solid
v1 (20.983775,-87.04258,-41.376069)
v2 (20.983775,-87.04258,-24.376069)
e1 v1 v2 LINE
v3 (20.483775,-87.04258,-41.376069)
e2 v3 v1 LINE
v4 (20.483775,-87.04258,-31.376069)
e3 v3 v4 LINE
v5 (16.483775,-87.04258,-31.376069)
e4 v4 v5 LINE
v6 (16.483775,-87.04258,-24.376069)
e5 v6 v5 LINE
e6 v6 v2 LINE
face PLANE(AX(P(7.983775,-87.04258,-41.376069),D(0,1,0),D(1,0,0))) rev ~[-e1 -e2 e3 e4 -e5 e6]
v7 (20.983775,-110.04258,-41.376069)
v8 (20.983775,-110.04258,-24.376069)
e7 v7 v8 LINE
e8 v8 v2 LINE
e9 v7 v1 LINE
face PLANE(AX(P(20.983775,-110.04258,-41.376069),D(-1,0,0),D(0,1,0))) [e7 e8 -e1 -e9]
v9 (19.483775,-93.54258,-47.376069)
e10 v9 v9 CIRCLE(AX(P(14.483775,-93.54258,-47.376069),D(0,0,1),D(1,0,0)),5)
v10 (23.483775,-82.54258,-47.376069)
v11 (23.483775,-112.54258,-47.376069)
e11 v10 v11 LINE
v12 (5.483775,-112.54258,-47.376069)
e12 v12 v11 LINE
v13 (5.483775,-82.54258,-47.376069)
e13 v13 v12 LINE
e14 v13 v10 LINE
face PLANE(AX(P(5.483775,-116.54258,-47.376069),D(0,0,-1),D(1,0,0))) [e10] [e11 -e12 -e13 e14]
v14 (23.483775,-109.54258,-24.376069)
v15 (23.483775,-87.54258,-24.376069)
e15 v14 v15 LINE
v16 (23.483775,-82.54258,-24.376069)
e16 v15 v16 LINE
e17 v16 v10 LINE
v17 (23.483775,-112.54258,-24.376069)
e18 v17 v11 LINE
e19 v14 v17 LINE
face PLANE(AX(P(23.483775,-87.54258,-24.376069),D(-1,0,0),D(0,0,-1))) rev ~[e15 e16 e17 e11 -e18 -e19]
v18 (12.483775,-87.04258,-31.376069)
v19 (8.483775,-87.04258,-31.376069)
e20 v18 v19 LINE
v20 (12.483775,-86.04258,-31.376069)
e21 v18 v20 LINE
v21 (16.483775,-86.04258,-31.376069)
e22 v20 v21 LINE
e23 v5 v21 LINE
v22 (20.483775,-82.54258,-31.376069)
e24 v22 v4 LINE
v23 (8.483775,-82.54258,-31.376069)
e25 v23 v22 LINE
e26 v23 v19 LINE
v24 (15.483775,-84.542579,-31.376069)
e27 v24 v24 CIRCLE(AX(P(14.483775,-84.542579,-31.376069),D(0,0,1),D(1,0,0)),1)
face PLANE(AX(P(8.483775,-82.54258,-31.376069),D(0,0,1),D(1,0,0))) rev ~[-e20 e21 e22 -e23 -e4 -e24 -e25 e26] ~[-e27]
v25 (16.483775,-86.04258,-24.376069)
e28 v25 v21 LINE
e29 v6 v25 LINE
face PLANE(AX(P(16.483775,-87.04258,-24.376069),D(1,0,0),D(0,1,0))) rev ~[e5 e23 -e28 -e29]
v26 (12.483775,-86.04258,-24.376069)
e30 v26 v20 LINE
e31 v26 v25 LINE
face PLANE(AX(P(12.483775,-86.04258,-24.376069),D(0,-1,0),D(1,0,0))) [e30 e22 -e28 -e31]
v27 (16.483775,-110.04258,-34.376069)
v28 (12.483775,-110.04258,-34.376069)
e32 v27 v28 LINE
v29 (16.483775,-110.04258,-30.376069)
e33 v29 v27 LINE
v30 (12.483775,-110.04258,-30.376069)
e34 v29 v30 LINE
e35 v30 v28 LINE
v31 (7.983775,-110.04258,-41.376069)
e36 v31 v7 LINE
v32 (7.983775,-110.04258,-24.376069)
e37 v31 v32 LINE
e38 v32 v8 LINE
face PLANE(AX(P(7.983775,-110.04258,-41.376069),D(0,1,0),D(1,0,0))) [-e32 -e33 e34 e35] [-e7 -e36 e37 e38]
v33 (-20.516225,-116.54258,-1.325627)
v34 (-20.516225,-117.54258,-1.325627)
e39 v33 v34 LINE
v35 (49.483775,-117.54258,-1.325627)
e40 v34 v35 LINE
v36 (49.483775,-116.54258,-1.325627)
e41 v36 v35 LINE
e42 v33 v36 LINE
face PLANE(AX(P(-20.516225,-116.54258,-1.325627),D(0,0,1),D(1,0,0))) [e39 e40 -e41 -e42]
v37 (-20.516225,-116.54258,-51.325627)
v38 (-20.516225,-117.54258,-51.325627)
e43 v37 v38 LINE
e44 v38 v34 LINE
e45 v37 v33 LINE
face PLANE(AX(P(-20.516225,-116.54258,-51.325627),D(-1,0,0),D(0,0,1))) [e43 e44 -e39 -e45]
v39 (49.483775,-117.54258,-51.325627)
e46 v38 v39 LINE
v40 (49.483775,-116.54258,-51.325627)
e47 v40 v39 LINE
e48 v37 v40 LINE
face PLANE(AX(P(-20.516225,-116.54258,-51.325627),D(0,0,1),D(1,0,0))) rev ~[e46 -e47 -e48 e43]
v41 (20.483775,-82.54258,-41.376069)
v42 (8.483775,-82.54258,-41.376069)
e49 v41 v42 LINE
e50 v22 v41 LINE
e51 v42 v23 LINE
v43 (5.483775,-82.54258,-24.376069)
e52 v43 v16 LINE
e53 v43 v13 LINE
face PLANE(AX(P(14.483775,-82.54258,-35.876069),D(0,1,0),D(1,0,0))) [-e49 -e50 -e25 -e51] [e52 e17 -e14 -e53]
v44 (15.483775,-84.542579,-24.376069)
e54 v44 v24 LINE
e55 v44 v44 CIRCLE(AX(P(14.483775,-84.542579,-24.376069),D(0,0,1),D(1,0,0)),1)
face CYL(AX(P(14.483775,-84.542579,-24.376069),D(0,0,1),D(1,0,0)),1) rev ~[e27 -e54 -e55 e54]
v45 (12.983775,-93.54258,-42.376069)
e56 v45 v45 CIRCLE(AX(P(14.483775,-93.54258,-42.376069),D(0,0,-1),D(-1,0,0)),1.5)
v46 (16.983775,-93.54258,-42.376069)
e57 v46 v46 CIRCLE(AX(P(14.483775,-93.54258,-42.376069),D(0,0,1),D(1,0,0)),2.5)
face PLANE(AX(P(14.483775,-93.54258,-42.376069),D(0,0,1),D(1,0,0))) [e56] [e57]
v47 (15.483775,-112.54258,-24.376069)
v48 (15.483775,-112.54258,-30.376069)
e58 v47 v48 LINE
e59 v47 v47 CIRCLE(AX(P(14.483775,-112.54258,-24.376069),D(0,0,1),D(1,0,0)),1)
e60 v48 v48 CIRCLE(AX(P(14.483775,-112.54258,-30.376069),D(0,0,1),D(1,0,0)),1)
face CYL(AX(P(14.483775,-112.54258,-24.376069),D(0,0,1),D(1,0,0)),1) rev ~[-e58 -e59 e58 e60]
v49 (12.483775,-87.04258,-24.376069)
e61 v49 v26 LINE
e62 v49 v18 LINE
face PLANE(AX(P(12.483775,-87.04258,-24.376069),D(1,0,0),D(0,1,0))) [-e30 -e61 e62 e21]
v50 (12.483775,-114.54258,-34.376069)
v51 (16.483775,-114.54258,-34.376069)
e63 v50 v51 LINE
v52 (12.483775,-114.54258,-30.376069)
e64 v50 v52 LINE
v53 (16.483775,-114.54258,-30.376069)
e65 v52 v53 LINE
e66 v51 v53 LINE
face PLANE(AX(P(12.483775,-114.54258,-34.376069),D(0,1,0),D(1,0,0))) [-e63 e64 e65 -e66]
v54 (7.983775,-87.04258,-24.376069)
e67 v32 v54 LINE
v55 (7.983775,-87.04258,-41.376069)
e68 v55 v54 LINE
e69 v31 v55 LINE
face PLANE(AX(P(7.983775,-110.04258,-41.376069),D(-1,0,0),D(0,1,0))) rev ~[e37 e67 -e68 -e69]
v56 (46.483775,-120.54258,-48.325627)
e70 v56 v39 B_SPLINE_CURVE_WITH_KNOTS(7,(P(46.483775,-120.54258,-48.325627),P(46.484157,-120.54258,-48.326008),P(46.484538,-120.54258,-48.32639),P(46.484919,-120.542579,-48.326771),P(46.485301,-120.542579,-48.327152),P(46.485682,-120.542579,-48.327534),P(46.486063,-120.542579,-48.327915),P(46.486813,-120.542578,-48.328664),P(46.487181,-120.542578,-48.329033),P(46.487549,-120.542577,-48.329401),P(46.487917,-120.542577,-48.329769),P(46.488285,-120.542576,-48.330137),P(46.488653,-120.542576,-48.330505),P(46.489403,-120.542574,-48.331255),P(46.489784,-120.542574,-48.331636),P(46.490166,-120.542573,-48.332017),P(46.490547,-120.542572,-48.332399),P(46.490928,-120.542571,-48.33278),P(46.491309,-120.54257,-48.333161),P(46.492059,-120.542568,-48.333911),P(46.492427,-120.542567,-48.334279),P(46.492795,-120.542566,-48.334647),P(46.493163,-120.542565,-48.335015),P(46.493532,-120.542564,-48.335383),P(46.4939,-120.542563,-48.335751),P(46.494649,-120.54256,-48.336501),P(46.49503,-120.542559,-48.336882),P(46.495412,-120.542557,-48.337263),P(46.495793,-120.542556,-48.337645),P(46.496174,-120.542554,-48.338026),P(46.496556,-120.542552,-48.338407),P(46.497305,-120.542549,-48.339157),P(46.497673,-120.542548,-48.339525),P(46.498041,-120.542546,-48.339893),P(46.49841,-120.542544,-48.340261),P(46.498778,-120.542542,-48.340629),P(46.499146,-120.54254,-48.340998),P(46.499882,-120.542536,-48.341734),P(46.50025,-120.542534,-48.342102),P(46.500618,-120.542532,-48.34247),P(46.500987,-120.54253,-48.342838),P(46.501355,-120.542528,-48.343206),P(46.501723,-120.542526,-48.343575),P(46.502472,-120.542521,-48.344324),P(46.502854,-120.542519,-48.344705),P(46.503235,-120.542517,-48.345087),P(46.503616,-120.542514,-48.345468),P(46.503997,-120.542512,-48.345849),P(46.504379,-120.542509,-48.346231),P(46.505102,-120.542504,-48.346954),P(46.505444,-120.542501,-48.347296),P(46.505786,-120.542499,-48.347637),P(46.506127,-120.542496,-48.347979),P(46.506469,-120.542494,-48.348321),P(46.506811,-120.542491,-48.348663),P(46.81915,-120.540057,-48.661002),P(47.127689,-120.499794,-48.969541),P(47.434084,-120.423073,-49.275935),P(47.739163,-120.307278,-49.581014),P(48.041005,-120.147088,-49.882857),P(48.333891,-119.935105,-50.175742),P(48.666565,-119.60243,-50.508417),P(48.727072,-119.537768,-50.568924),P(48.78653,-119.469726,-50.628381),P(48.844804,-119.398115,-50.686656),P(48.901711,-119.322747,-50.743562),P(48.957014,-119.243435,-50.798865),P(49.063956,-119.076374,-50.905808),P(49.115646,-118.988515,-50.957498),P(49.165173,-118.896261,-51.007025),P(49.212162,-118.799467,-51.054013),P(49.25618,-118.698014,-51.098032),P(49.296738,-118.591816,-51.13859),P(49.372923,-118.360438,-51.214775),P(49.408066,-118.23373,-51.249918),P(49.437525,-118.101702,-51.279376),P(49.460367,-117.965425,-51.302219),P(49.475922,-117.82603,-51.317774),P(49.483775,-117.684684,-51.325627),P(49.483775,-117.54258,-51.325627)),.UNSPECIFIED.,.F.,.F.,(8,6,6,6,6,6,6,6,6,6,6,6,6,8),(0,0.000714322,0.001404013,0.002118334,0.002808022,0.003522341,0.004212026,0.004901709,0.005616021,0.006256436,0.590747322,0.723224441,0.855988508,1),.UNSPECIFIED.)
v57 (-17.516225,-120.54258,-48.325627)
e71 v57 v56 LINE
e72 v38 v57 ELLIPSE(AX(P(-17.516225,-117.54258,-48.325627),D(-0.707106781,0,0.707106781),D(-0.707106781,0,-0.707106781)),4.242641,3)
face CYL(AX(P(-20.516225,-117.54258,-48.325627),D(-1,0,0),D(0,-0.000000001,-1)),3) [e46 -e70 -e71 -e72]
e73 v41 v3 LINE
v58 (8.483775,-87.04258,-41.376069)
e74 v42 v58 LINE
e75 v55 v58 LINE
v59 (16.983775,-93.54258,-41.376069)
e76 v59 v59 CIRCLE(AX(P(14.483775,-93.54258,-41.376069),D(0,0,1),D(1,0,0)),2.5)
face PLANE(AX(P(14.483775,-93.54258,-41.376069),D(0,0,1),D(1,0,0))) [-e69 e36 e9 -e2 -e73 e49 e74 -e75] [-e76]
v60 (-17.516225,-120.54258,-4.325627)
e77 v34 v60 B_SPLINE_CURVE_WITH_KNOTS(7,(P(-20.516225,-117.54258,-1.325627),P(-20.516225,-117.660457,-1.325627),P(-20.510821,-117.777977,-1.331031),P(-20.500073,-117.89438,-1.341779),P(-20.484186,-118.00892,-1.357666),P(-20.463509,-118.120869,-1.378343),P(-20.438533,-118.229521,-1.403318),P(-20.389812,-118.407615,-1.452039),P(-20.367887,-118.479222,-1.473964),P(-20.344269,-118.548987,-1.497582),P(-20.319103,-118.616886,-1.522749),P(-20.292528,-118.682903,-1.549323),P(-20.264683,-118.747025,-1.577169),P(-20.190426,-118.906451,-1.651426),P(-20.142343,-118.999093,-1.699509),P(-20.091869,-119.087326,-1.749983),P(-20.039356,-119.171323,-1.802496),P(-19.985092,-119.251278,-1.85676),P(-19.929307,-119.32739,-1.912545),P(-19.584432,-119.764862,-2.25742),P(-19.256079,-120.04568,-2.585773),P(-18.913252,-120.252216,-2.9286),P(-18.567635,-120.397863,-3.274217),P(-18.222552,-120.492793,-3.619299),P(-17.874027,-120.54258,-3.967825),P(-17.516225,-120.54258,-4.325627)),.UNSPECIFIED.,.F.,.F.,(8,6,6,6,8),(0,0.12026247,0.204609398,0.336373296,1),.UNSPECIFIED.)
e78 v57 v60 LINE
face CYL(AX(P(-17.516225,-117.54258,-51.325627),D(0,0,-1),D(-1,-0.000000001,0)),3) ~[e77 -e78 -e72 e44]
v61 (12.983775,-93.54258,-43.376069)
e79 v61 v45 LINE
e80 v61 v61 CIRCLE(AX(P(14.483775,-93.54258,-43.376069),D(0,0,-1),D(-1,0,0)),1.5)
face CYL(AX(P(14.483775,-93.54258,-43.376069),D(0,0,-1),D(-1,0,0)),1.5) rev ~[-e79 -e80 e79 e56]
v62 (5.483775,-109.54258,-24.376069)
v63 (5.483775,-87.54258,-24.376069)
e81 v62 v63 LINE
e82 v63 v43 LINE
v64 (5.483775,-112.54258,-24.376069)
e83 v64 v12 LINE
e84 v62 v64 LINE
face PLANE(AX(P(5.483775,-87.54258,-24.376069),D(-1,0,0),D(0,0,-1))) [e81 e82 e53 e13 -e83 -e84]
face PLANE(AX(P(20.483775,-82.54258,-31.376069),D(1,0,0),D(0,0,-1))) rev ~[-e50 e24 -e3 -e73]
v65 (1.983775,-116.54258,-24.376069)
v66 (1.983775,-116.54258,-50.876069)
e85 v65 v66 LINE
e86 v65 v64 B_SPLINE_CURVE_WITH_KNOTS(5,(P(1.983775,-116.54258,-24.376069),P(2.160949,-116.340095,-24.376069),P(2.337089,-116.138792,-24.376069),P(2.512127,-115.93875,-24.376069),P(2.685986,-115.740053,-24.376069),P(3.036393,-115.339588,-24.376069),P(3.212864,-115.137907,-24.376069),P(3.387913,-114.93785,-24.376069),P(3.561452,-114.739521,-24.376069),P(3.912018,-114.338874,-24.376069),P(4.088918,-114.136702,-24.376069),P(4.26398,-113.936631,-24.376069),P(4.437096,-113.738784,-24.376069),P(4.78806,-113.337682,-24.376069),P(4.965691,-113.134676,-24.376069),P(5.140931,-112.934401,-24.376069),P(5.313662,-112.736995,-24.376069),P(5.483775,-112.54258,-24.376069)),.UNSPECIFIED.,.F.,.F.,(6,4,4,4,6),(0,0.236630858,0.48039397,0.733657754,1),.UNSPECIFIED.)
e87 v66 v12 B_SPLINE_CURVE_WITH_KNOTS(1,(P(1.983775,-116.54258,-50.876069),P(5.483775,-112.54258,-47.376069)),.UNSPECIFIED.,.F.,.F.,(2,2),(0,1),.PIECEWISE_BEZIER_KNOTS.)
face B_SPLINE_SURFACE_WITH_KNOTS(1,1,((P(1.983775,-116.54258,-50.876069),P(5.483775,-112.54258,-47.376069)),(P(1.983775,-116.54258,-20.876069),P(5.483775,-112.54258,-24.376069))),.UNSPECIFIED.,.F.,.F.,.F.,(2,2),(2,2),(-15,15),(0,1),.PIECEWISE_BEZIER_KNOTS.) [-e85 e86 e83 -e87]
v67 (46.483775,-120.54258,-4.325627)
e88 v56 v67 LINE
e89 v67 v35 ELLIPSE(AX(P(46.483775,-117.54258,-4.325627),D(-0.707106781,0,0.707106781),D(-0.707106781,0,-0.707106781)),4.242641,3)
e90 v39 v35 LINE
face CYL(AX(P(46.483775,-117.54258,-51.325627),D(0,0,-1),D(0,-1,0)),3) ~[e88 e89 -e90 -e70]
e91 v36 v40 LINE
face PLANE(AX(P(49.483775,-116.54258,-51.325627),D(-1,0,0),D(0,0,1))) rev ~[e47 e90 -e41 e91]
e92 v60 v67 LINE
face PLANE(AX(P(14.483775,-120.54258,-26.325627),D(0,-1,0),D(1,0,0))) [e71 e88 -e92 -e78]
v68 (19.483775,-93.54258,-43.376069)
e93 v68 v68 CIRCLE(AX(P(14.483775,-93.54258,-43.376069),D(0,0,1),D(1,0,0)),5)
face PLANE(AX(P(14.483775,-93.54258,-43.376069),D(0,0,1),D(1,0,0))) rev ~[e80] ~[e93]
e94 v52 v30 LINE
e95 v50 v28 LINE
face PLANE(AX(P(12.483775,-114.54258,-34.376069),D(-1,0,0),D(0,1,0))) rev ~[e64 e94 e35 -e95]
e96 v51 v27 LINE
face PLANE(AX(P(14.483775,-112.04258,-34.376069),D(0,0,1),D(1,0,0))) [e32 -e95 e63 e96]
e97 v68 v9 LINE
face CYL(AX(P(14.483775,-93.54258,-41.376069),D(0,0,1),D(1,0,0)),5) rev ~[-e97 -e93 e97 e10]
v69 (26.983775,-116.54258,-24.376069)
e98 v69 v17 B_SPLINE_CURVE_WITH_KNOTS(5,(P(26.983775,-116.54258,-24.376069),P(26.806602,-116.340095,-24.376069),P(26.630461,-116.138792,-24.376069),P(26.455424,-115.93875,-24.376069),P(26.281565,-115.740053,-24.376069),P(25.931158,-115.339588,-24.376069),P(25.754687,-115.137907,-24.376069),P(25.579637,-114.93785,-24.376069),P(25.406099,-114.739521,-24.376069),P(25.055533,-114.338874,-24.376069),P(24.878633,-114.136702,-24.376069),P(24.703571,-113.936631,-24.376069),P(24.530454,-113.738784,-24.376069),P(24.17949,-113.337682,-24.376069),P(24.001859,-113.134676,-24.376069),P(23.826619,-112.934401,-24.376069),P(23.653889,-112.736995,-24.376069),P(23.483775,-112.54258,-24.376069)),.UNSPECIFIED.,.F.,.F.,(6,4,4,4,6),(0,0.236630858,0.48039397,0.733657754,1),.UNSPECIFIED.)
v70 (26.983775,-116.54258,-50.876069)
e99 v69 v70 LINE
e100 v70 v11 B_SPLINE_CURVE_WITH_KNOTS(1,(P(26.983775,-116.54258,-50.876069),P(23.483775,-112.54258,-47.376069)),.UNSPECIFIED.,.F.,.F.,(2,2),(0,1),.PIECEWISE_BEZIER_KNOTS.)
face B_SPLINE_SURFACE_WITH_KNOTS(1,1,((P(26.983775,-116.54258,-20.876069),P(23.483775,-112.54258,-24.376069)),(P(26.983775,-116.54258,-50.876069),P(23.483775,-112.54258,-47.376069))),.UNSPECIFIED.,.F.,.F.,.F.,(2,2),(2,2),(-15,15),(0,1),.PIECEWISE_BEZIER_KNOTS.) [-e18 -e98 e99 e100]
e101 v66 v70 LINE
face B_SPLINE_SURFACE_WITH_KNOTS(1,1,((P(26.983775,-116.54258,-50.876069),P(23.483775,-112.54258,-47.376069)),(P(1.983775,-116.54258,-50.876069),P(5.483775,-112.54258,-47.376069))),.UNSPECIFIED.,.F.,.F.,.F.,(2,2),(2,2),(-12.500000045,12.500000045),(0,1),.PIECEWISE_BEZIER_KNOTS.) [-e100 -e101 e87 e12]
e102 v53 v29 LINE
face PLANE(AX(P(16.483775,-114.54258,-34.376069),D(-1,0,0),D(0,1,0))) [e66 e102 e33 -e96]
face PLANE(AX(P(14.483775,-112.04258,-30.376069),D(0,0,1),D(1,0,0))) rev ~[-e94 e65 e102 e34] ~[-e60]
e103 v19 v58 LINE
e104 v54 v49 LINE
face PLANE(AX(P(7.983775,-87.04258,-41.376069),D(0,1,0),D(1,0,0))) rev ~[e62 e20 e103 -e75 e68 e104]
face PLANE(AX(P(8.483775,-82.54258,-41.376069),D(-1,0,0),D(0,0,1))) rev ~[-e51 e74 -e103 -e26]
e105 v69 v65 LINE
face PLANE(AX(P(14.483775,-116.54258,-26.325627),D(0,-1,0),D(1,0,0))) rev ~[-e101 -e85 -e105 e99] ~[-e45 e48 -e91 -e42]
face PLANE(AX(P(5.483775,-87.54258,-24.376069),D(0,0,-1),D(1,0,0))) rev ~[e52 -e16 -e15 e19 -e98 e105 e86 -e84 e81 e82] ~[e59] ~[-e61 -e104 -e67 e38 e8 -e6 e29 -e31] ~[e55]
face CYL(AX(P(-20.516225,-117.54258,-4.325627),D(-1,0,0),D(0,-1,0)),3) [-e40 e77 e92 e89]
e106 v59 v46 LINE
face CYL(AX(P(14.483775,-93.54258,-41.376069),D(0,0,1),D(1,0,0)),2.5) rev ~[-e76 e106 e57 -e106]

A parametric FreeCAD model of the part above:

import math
import FreeCAD as App
import Part
import Sketcher
from FreeCAD import Vector
Q = App.Units.Quantity

doc = App.newDocument("Part")
body = doc.addObject("PartDesign::Body", "Body")

sketch1 = body.newObject("Sketcher::SketchObject", "Sketch")
sketch1.AttachmentSupport = (doc.getObject("XZ_Plane"), [""])
sketch1.MapMode = "FlatFace"
sketch1.AttachmentOffset = App.Placement(Vector(0, 0, 109.54258), App.Rotation())
sketch1.addGeometry([
    Part.LineSegment(Vector(23.5, -44.4, 0), Vector(23.5, -24.4, 0)),
    Part.LineSegment(Vector(23.5, -24.4, 0), Vector(20.5, -24.4, 0)),
    Part.LineSegment(Vector(20.5, -24.4, 0), Vector(20.5, -41.4, 0)),
    Part.LineSegment(Vector(20.5, -41.4, 0), Vector(8.5, -41.4, 0)),
    Part.LineSegment(Vector(8.5, -41.4, 0), Vector(8.5, -24.4, 0)),
    Part.LineSegment(Vector(8.5, -24.4, 0), Vector(5.5, -24.4, 0)),
    Part.LineSegment(Vector(5.5, -24.4, 0), Vector(5.5, -44.4, 0)),
    Part.LineSegment(Vector(5.5, -44.4, 0), Vector(23.5, -44.4, 0)),
], False)
sketch1.addConstraint([
    Sketcher.Constraint("Coincident", 0, 2, 1, 1),
    Sketcher.Constraint("Coincident", 1, 2, 2, 1),
    Sketcher.Constraint("Coincident", 2, 2, 3, 1),
    Sketcher.Constraint("Coincident", 3, 2, 4, 1),
    Sketcher.Constraint("Coincident", 4, 2, 5, 1),
    Sketcher.Constraint("Coincident", 5, 2, 6, 1),
    Sketcher.Constraint("Coincident", 6, 2, 7, 1),
    Sketcher.Constraint("Coincident", 7, 2, 0, 1),
    Sketcher.Constraint("Vertical", 0),
    Sketcher.Constraint("Horizontal", 1),
    Sketcher.Constraint("Vertical", 2),
    Sketcher.Constraint("Horizontal", 3),
    Sketcher.Constraint("Vertical", 4),
    Sketcher.Constraint("Horizontal", 5),
    Sketcher.Constraint("Vertical", 6),
    Sketcher.Constraint("Horizontal", 7),
    Sketcher.Constraint("Horizontal", 1, 2, 4, 2),
    Sketcher.Constraint("Equal", 1, 5),
    Sketcher.Constraint("DistanceX", 1, 2, 1, 1, Q("3 mm")),
    Sketcher.Constraint("DistanceX", 3, 2, 3, 1, Q("12 mm")),
    Sketcher.Constraint("DistanceY", 0, 1, 0, 2, Q("20 mm")),
    Sketcher.Constraint("DistanceY", 2, 2, 2, 1, Q("17 mm")),
    Sketcher.Constraint("DistanceY", 0, 2, -1, 1, Q("24.376069 mm")),
    Sketcher.Constraint("DistanceX", -1, 1, 0, 2, Q("23.483775 mm")),
])
pad1 = body.newObject("PartDesign::Pad", "Pad")
pad1.Profile = sketch1
pad1.Length = 22
pad1.Reversed = True

sketch2 = body.newObject("Sketcher::SketchObject", "Sketch001")
sketch2.AttachmentSupport = (doc.getObject("XZ_Plane"), [""])
sketch2.MapMode = "FlatFace"
sketch2.AttachmentOffset = App.Placement(Vector(0, 0, 109.54258), App.Rotation())
sketch2.addGeometry([
    Part.LineSegment(Vector(5, -24, 0), Vector(5, -44, 0)),
    Part.LineSegment(Vector(5, -44, 0), Vector(23, -44, 0)),
    Part.LineSegment(Vector(23, -44, 0), Vector(23, -24, 0)),
    Part.LineSegment(Vector(23, -24, 0), Vector(5, -24, 0)),
], False)
sketch2.addConstraint([
    Sketcher.Constraint("Coincident", 0, 2, 1, 1),
    Sketcher.Constraint("Coincident", 1, 2, 2, 1),
    Sketcher.Constraint("Coincident", 2, 2, 3, 1),
    Sketcher.Constraint("Coincident", 3, 2, 0, 1),
    Sketcher.Constraint("Vertical", 0),
    Sketcher.Constraint("Horizontal", 1),
    Sketcher.Constraint("Vertical", 2),
    Sketcher.Constraint("Horizontal", 3),
    Sketcher.Constraint("DistanceX", 1, 1, 1, 2, Q("18 mm")),
    Sketcher.Constraint("DistanceY", 0, 2, 0, 1, Q("20 mm")),
    Sketcher.Constraint("DistanceY", 0, 2, -1, 1, Q("44.376069 mm")),
    Sketcher.Constraint("DistanceX", -1, 1, 0, 2, Q("5.483775 mm")),
])
pad2 = body.newObject("PartDesign::Pad", "Pad001")
pad2.Profile = sketch2
pad2.Length = 7

sketch3 = body.newObject("Sketcher::SketchObject", "Sketch002")
sketch3.AttachmentSupport = (doc.getObject("XZ_Plane"), [""])
sketch3.MapMode = "FlatFace"
sketch3.AttachmentOffset = App.Placement(Vector(0, 0, 116.54258), App.Rotation())
sketch3.addGeometry([
    Part.LineSegment(Vector(-21, -1, 0), Vector(-21, -51, 0)),
    Part.LineSegment(Vector(-21, -51, 0), Vector(49, -51, 0)),
    Part.LineSegment(Vector(49, -51, 0), Vector(49, -1, 0)),
    Part.LineSegment(Vector(49, -1, 0), Vector(-21, -1, 0)),
], False)
sketch3.addConstraint([
    Sketcher.Constraint("Coincident", 0, 2, 1, 1),
    Sketcher.Constraint("Coincident", 1, 2, 2, 1),
    Sketcher.Constraint("Coincident", 2, 2, 3, 1),
    Sketcher.Constraint("Coincident", 3, 2, 0, 1),
    Sketcher.Constraint("Vertical", 0),
    Sketcher.Constraint("Horizontal", 1),
    Sketcher.Constraint("Vertical", 2),
    Sketcher.Constraint("Horizontal", 3),
    Sketcher.Constraint("DistanceX", 1, 1, 1, 2, Q("70 mm")),
    Sketcher.Constraint("DistanceY", 0, 2, 0, 1, Q("50 mm")),
    Sketcher.Constraint("DistanceX", 0, 2, -1, 1, Q("20.516225 mm")),
    Sketcher.Constraint("DistanceY", 0, 2, -1, 1, Q("51.325627 mm")),
])
pad3 = body.newObject("PartDesign::Pad", "Pad002")
pad3.Profile = sketch3
pad3.Length = 4

sketch4 = body.newObject("Sketcher::SketchObject", "Sketch003")
sketch4.AttachmentSupport = (doc.getObject("XZ_Plane"), [""])
sketch4.MapMode = "FlatFace"
sketch4.AttachmentOffset = App.Placement(Vector(0, 0, 116.54258), App.Rotation())
sketch4.addGeometry([
    Part.LineSegment(Vector(5.5, -47.4, 0), Vector(5.5, -44.4, 0)),
    Part.LineSegment(Vector(5.5, -44.4, 0), Vector(23.5, -44.4, 0)),
    Part.LineSegment(Vector(23.5, -44.4, 0), Vector(23.5, -47.4, 0)),
    Part.LineSegment(Vector(23.5, -47.4, 0), Vector(5.5, -47.4, 0)),
], False)
sketch4.addConstraint([
    Sketcher.Constraint("Coincident", 0, 2, 1, 1),
    Sketcher.Constraint("Coincident", 1, 2, 2, 1),
    Sketcher.Constraint("Coincident", 2, 2, 3, 1),
    Sketcher.Constraint("Coincident", 3, 2, 0, 1),
    Sketcher.Constraint("Vertical", 0),
    Sketcher.Constraint("Horizontal", 1),
    Sketcher.Constraint("Vertical", 2),
    Sketcher.Constraint("Horizontal", 3),
    Sketcher.Constraint("DistanceX", 1, 1, 1, 2, Q("18 mm")),
    Sketcher.Constraint("DistanceY", 0, 1, 0, 2, Q("3 mm")),
    Sketcher.Constraint("DistanceY", 0, 2, -1, 1, Q("44.376069 mm")),
    Sketcher.Constraint("DistanceX", -1, 1, 0, 2, Q("5.483775 mm")),
])
pad4 = body.newObject("PartDesign::Pad", "Pad003")
pad4.Profile = sketch4
pad4.Length = 34
pad4.Reversed = True

sketch5 = body.newObject("Sketcher::SketchObject", "Sketch004")
sketch5.AttachmentSupport = (doc.getObject("XY_Plane"), [""])
sketch5.MapMode = "FlatFace"
sketch5.AttachmentOffset = App.Placement(Vector(0, 0, -51.325627), App.Rotation())
sketch5.addGeometry([
    Part.LineSegment(Vector(49.5, -117.5, 0), Vector(49.5, -120.5, 0)),
    Part.LineSegment(Vector(49.5, -120.5, 0), Vector(46.5, -120.5, 0)),
    Part.ArcOfCircle(Part.Circle(Vector(46.5, -117.5, 0), Vector(0, 0, 1), 3), math.radians(-90), math.radians(0)),
], False)
sketch5.addConstraint([
    Sketcher.Constraint("Coincident", 0, 2, 1, 1),
    Sketcher.Constraint("Tangent", 1, 2, 2, 1),
    Sketcher.Constraint("Tangent", 2, 2, 0, 1),
    Sketcher.Constraint("Vertical", 0),
    Sketcher.Constraint("Horizontal", 1),
    Sketcher.Constraint("Radius", 2, Q("3 mm")),
    Sketcher.Constraint("DistanceY", 2, 3, -1, 1, Q("117.54258 mm")),
    Sketcher.Constraint("DistanceX", -1, 1, 2, 3, Q("46.483775 mm")),
])
pocket1 = body.newObject("PartDesign::Pocket", "Pocket")
pocket1.Profile = sketch5
pocket1.Type = "UpToFirst"
pocket1.Reversed = True

sketch6 = body.newObject("Sketcher::SketchObject", "Sketch005")
sketch6.AttachmentSupport = (doc.getObject("XY_Plane"), [""])
sketch6.MapMode = "FlatFace"
sketch6.AttachmentOffset = App.Placement(Vector(0, 0, -51.325627), App.Rotation())
sketch6.addGeometry([
    Part.LineSegment(Vector(-17.5, -120.5, 0), Vector(-20.5, -120.5, 0)),
    Part.LineSegment(Vector(-20.5, -120.5, 0), Vector(-20.5, -117.5, 0)),
    Part.ArcOfCircle(Part.Circle(Vector(-17.5, -117.5, 0), Vector(0, 0, 1), 3), math.radians(-180), math.radians(-90)),
], False)
sketch6.addConstraint([
    Sketcher.Constraint("Coincident", 0, 2, 1, 1),
    Sketcher.Constraint("Tangent", 1, 2, 2, 1),
    Sketcher.Constraint("Tangent", 2, 2, 0, 1),
    Sketcher.Constraint("Horizontal", 0),
    Sketcher.Constraint("Vertical", 1),
    Sketcher.Constraint("Radius", 2, Q("3 mm")),
    Sketcher.Constraint("DistanceY", 2, 3, -1, 1, Q("117.54258 mm")),
    Sketcher.Constraint("DistanceX", 2, 3, -1, 1, Q("17.516225 mm")),
])
pocket2 = body.newObject("PartDesign::Pocket", "Pocket001")
pocket2.Profile = sketch6
pocket2.Type = "UpToFirst"
pocket2.Reversed = True

sketch7 = body.newObject("Sketcher::SketchObject", "Sketch006")
sketch7.AttachmentSupport = (doc.getObject("YZ_Plane"), [""])
sketch7.MapMode = "FlatFace"
sketch7.AttachmentOffset = App.Placement(Vector(0, 0, -20.516225), App.Rotation())
sketch7.addGeometry([
    Part.ArcOfCircle(Part.Circle(Vector(-117.5, -4.3, 0), Vector(0, 0, 1), 3), math.radians(90), math.radians(180)),
    Part.LineSegment(Vector(-120.5, -4.3, 0), Vector(-130.5, -4.3, 0)),
    Part.ArcOfCircle(Part.Circle(Vector(-117.5, -4.3, 0), Vector(0, 0, 1), 13), math.radians(90), math.radians(180)),
    Part.LineSegment(Vector(-117.5, 8.7, 0), Vector(-117.5, -1.3, 0)),
], False)
sketch7.addConstraint([
    Sketcher.Constraint("Coincident", 0, 2, 1, 1),
    Sketcher.Constraint("Coincident", 1, 2, 2, 2),
    Sketcher.Constraint("Coincident", 2, 1, 3, 1),
    Sketcher.Constraint("Coincident", 3, 2, 0, 1),
    Sketcher.Constraint("Horizontal", 1),
    Sketcher.Constraint("Vertical", 3),
    Sketcher.Constraint("Coincident", 2, 3, 0, 3),
    Sketcher.Constraint("Horizontal", 2, 3, 0, 2),
    Sketcher.Constraint("Vertical", 0, 3, 2, 1),
    Sketcher.Constraint("Radius", 0, Q("3 mm")),
    Sketcher.Constraint("Radius", 2, Q("13 mm")),
    Sketcher.Constraint("DistanceX", 0, 3, -1, 1, Q("117.54258 mm")),
    Sketcher.Constraint("DistanceY", 0, 3, -1, 1, Q("4.325627 mm")),
])
pocket3 = body.newObject("PartDesign::Pocket", "Pocket002")
pocket3.Profile = sketch7
pocket3.Length = 70
pocket3.Reversed = True

sketch8 = body.newObject("Sketcher::SketchObject", "Sketch007")
sketch8.AttachmentSupport = (doc.getObject("YZ_Plane"), [""])
sketch8.MapMode = "FlatFace"
sketch8.AttachmentOffset = App.Placement(Vector(0, 0, -20.516225), App.Rotation())
sketch8.addGeometry([
    Part.ArcOfCircle(Part.Circle(Vector(-117.5, -48.3, 0), Vector(0, 0, 1), 3), math.radians(-180), math.radians(-90)),
    Part.LineSegment(Vector(-117.5, -51.3, 0), Vector(-117.5, -61.3, 0)),
    Part.ArcOfCircle(Part.Circle(Vector(-117.5, -48.3, 0), Vector(0, 0, 1), 13), math.radians(-180), math.radians(-90)),
    Part.LineSegment(Vector(-130.5, -48.3, 0), Vector(-120.5, -48.3, 0)),
], False)
sketch8.addConstraint([
    Sketcher.Constraint("Coincident", 0, 2, 1, 1),
    Sketcher.Constraint("Coincident", 1, 2, 2, 2),
    Sketcher.Constraint("Coincident", 2, 1, 3, 1),
    Sketcher.Constraint("Coincident", 3, 2, 0, 1),
    Sketcher.Constraint("Vertical", 1),
    Sketcher.Constraint("Horizontal", 3),
    Sketcher.Constraint("Coincident", 2, 3, 0, 3),
    Sketcher.Constraint("Horizontal", 0, 3, 2, 1),
    Sketcher.Constraint("Vertical", 2, 3, 0, 2),
    Sketcher.Constraint("Radius", 0, Q("3 mm")),
    Sketcher.Constraint("Radius", 2, Q("13 mm")),
    Sketcher.Constraint("DistanceX", 0, 3, -1, 1, Q("117.54258 mm")),
    Sketcher.Constraint("DistanceY", 0, 3, -1, 1, Q("48.325627 mm")),
])
pocket4 = body.newObject("PartDesign::Pocket", "Pocket003")
pocket4.Profile = sketch8
pocket4.Length = 70
pocket4.Reversed = True

sketch9 = body.newObject("Sketcher::SketchObject", "Sketch008")
sketch9.AttachmentSupport = (doc.getObject("XZ_Plane"), [""])
sketch9.MapMode = "FlatFace"
sketch9.AttachmentOffset = App.Placement(Vector(0, 0, 116.54258), App.Rotation())
sketch9.addGeometry([
    Part.LineSegment(Vector(2, -51, 0), Vector(2, -21, 0)),
    Part.LineSegment(Vector(2, -21, 0), Vector(27, -21, 0)),
    Part.LineSegment(Vector(27, -21, 0), Vector(27, -51, 0)),
    Part.LineSegment(Vector(27, -51, 0), Vector(2, -51, 0)),
], False)
sketch9.addConstraint([
    Sketcher.Constraint("Coincident", 0, 2, 1, 1),
    Sketcher.Constraint("Coincident", 1, 2, 2, 1),
    Sketcher.Constraint("Coincident", 2, 2, 3, 1),
    Sketcher.Constraint("Coincident", 3, 2, 0, 1),
    Sketcher.Constraint("Vertical", 0),
    Sketcher.Constraint("Horizontal", 1),
    Sketcher.Constraint("Vertical", 2),
    Sketcher.Constraint("Horizontal", 3),
    Sketcher.Constraint("DistanceX", 1, 1, 1, 2, Q("25 mm")),
    Sketcher.Constraint("DistanceY", 0, 1, 0, 2, Q("30 mm")),
    Sketcher.Constraint("DistanceY", 0, 2, -1, 1, Q("20.876069 mm")),
    Sketcher.Constraint("DistanceX", -1, 1, 0, 2, Q("1.983775 mm")),
])

sketch10 = body.newObject("Sketcher::SketchObject", "Sketch009")
sketch10.AttachmentSupport = (doc.getObject("XZ_Plane"), [""])
sketch10.MapMode = "FlatFace"
sketch10.AttachmentOffset = App.Placement(Vector(0, 0, 112.54258), App.Rotation())
sketch10.addGeometry([
    Part.LineSegment(Vector(5, -47, 0), Vector(5, -24, 0)),
    Part.LineSegment(Vector(5, -24, 0), Vector(23, -24, 0)),
    Part.LineSegment(Vector(23, -24, 0), Vector(23, -47, 0)),
    Part.LineSegment(Vector(23, -47, 0), Vector(5, -47, 0)),
], False)
sketch10.addConstraint([
    Sketcher.Constraint("Coincident", 0, 2, 1, 1),
    Sketcher.Constraint("Coincident", 1, 2, 2, 1),
    Sketcher.Constraint("Coincident", 2, 2, 3, 1),
    Sketcher.Constraint("Coincident", 3, 2, 0, 1),
    Sketcher.Constraint("Vertical", 0),
    Sketcher.Constraint("Horizontal", 1),
    Sketcher.Constraint("Vertical", 2),
    Sketcher.Constraint("Horizontal", 3),
    Sketcher.Constraint("DistanceX", 1, 1, 1, 2, Q("18 mm")),
    Sketcher.Constraint("DistanceY", 0, 1, 0, 2, Q("23 mm")),
    Sketcher.Constraint("DistanceY", 0, 2, -1, 1, Q("24.376069 mm")),
    Sketcher.Constraint("DistanceX", -1, 1, 0, 2, Q("5.483775 mm")),
])

additiveloft = body.newObject("PartDesign::AdditiveLoft", "AdditiveLoft")
additiveloft.Profile = sketch9
additiveloft.Sections = [sketch10]

sketch11 = body.newObject("Sketcher::SketchObject", "Sketch010")
sketch11.AttachmentSupport = (doc.getObject("YZ_Plane"), [""])
sketch11.MapMode = "FlatFace"
sketch11.AttachmentOffset = App.Placement(Vector(0, 0, 5.483775), App.Rotation())
sketch11.addGeometry([
    Part.LineSegment(Vector(-112.5, -24.4, 0), Vector(-116.5, -24.4, 0)),
    Part.LineSegment(Vector(-116.5, -24.4, 0), Vector(-116.5, -20.9, 0)),
    Part.LineSegment(Vector(-116.5, -20.9, 0), Vector(-112.5, -24.4, 0)),
], False)
sketch11.addConstraint([
    Sketcher.Constraint("Coincident", 0, 2, 1, 1),
    Sketcher.Constraint("Coincident", 1, 2, 2, 1),
    Sketcher.Constraint("Coincident", 2, 2, 0, 1),
    Sketcher.Constraint("Horizontal", 0),
    Sketcher.Constraint("Vertical", 1),
    Sketcher.Constraint("DistanceX", 0, 2, 0, 1, Q("4 mm")),
    Sketcher.Constraint("DistanceY", 1, 1, 1, 2, Q("3.5 mm")),
    Sketcher.Constraint("DistanceX", 0, 2, -1, 1, Q("116.54258 mm")),
    Sketcher.Constraint("DistanceY", 0, 2, -1, 1, Q("24.376069 mm")),
])
pocket5 = body.newObject("PartDesign::Pocket", "Pocket004")
pocket5.Profile = sketch11
pocket5.Type = "ThroughAll"
pocket5.Midplane = True

sketch12 = body.newObject("Sketcher::SketchObject", "Sketch011")
sketch12.AttachmentSupport = (doc.getObject("XY_Plane"), [""])
sketch12.MapMode = "FlatFace"
sketch12.AttachmentOffset = App.Placement(Vector(0, 0, -24.376069), App.Rotation())
sketch12.addGeometry(Part.Circle(Vector(14.5, -112.5, 0), Vector(0, 0, 1), 1), False)
sketch12.addConstraint([
    Sketcher.Constraint("Diameter", 0, Q("2 mm")),
    Sketcher.Constraint("DistanceY", 0, 3, -1, 1, Q("112.54258 mm")),
    Sketcher.Constraint("DistanceX", -1, 1, 0, 3, Q("14.483775 mm")),
])
pocket6 = body.newObject("PartDesign::Pocket", "Pocket005")
pocket6.Profile = sketch12
pocket6.Length = 10

sketch13 = body.newObject("Sketcher::SketchObject", "Sketch012")
sketch13.AttachmentSupport = (doc.getObject("XY_Plane"), [""])
sketch13.MapMode = "FlatFace"
sketch13.AttachmentOffset = App.Placement(Vector(0, 0, -34.376069), App.Rotation())
sketch13.addGeometry([
    Part.LineSegment(Vector(12.5, -109.5, 0), Vector(12.5, -114.5, 0)),
    Part.LineSegment(Vector(12.5, -114.5, 0), Vector(16.5, -114.5, 0)),
    Part.LineSegment(Vector(16.5, -114.5, 0), Vector(16.5, -109.5, 0)),
    Part.LineSegment(Vector(16.5, -109.5, 0), Vector(12.5, -109.5, 0)),
], False)
sketch13.addConstraint([
    Sketcher.Constraint("Coincident", 0, 2, 1, 1),
    Sketcher.Constraint("Coincident", 1, 2, 2, 1),
    Sketcher.Constraint("Coincident", 2, 2, 3, 1),
    Sketcher.Constraint("Coincident", 3, 2, 0, 1),
    Sketcher.Constraint("Vertical", 0),
    Sketcher.Constraint("Horizontal", 1),
    Sketcher.Constraint("Vertical", 2),
    Sketcher.Constraint("Horizontal", 3),
    Sketcher.Constraint("DistanceX", 1, 1, 1, 2, Q("4 mm")),
    Sketcher.Constraint("DistanceY", 0, 2, 0, 1, Q("5 mm")),
    Sketcher.Constraint("DistanceY", 0, 2, -1, 1, Q("114.54258 mm")),
    Sketcher.Constraint("DistanceX", -1, 1, 0, 2, Q("12.483775 mm")),
])
pocket7 = body.newObject("PartDesign::Pocket", "Pocket006")
pocket7.Profile = sketch13
pocket7.Length = 4
pocket7.Reversed = True

sketch14 = body.newObject("Sketcher::SketchObject", "Sketch013")
sketch14.AttachmentSupport = (doc.getObject("XZ_Plane"), [""])
sketch14.MapMode = "FlatFace"
sketch14.AttachmentOffset = App.Placement(Vector(0, 0, 87.54258), App.Rotation())
sketch14.addGeometry([
    Part.LineSegment(Vector(5, -47, 0), Vector(5, -24, 0)),
    Part.LineSegment(Vector(5, -24, 0), Vector(23, -24, 0)),
    Part.LineSegment(Vector(23, -24, 0), Vector(23, -47, 0)),
    Part.LineSegment(Vector(23, -47, 0), Vector(5, -47, 0)),
], False)
sketch14.addConstraint([
    Sketcher.Constraint("Coincident", 0, 2, 1, 1),
    Sketcher.Constraint("Coincident", 1, 2, 2, 1),
    Sketcher.Constraint("Coincident", 2, 2, 3, 1),
    Sketcher.Constraint("Coincident", 3, 2, 0, 1),
    Sketcher.Constraint("Vertical", 0),
    Sketcher.Constraint("Horizontal", 1),
    Sketcher.Constraint("Vertical", 2),
    Sketcher.Constraint("Horizontal", 3),
    Sketcher.Constraint("DistanceX", 1, 1, 1, 2, Q("18 mm")),
    Sketcher.Constraint("DistanceY", 0, 1, 0, 2, Q("23 mm")),
    Sketcher.Constraint("DistanceY", 0, 2, -1, 1, Q("24.376069 mm")),
    Sketcher.Constraint("DistanceX", -1, 1, 0, 2, Q("5.483775 mm")),
])
pad5 = body.newObject("PartDesign::Pad", "Pad004")
pad5.Profile = sketch14
pad5.Length = 5
pad5.Reversed = True

sketch15 = body.newObject("Sketcher::SketchObject", "Sketch014")
sketch15.AttachmentSupport = (doc.getObject("XY_Plane"), [""])
sketch15.MapMode = "FlatFace"
sketch15.AttachmentOffset = App.Placement(Vector(0, 0, -24.376069), App.Rotation())
sketch15.addGeometry(Part.Circle(Vector(14.5, -84.5, 0), Vector(0, 0, 1), 1), False)
sketch15.addConstraint([
    Sketcher.Constraint("Diameter", 0, Q("2 mm")),
    Sketcher.Constraint("DistanceY", 0, 3, -1, 1, Q("84.542579 mm")),
    Sketcher.Constraint("DistanceX", -1, 1, 0, 3, Q("14.483775 mm")),
])
pocket8 = body.newObject("PartDesign::Pocket", "Pocket007")
pocket8.Profile = sketch15
pocket8.Length = 10

sketch16 = body.newObject("Sketcher::SketchObject", "Sketch015")
sketch16.AttachmentSupport = (doc.getObject("XZ_Plane"), [""])
sketch16.MapMode = "FlatFace"
sketch16.AttachmentOffset = App.Placement(Vector(0, 0, 82.54258), App.Rotation())
sketch16.addGeometry([
    Part.LineSegment(Vector(8, -41, 0), Vector(8, -31, 0)),
    Part.LineSegment(Vector(8, -31, 0), Vector(20, -31, 0)),
    Part.LineSegment(Vector(20, -31, 0), Vector(20, -41, 0)),
    Part.LineSegment(Vector(20, -41, 0), Vector(8, -41, 0)),
], False)
sketch16.addConstraint([
    Sketcher.Constraint("Coincident", 0, 2, 1, 1),
    Sketcher.Constraint("Coincident", 1, 2, 2, 1),
    Sketcher.Constraint("Coincident", 2, 2, 3, 1),
    Sketcher.Constraint("Coincident", 3, 2, 0, 1),
    Sketcher.Constraint("Vertical", 0),
    Sketcher.Constraint("Horizontal", 1),
    Sketcher.Constraint("Vertical", 2),
    Sketcher.Constraint("Horizontal", 3),
    Sketcher.Constraint("DistanceX", 1, 1, 1, 2, Q("12 mm")),
    Sketcher.Constraint("DistanceY", 0, 1, 0, 2, Q("10 mm")),
    Sketcher.Constraint("DistanceY", 0, 2, -1, 1, Q("31.376069 mm")),
    Sketcher.Constraint("DistanceX", -1, 1, 0, 2, Q("8.483775 mm")),
])
pocket9 = body.newObject("PartDesign::Pocket", "Pocket008")
pocket9.Profile = sketch16
pocket9.Type = "UpToFirst"
pocket9.Reversed = True

sketch17 = body.newObject("Sketcher::SketchObject", "Sketch016")
sketch17.AttachmentSupport = (doc.getObject("XY_Plane"), [""])
sketch17.MapMode = "FlatFace"
sketch17.AttachmentOffset = App.Placement(Vector(0, 0, -41.376069), App.Rotation())
sketch17.addGeometry([
    Part.LineSegment(Vector(8, -87, 0), Vector(8, -110, 0)),
    Part.LineSegment(Vector(8, -110, 0), Vector(21, -110, 0)),
    Part.LineSegment(Vector(21, -110, 0), Vector(21, -87, 0)),
    Part.LineSegment(Vector(21, -87, 0), Vector(8, -87, 0)),
], False)
sketch17.addConstraint([
    Sketcher.Constraint("Coincident", 0, 2, 1, 1),
    Sketcher.Constraint("Coincident", 1, 2, 2, 1),
    Sketcher.Constraint("Coincident", 2, 2, 3, 1),
    Sketcher.Constraint("Coincident", 3, 2, 0, 1),
    Sketcher.Constraint("Vertical", 0),
    Sketcher.Constraint("Horizontal", 1),
    Sketcher.Constraint("Vertical", 2),
    Sketcher.Constraint("Horizontal", 3),
    Sketcher.Constraint("DistanceX", 1, 1, 1, 2, Q("13 mm")),
    Sketcher.Constraint("DistanceY", 0, 2, 0, 1, Q("23 mm")),
    Sketcher.Constraint("DistanceY", 0, 2, -1, 1, Q("110.04258 mm")),
    Sketcher.Constraint("DistanceX", -1, 1, 0, 2, Q("7.983775 mm")),
])
pocket10 = body.newObject("PartDesign::Pocket", "Pocket009")
pocket10.Profile = sketch17
pocket10.Length = 17
pocket10.Reversed = True

sketch18 = body.newObject("Sketcher::SketchObject", "Sketch017")
sketch18.AttachmentSupport = (doc.getObject("XY_Plane"), [""])
sketch18.MapMode = "FlatFace"
sketch18.AttachmentOffset = App.Placement(Vector(0, 0, -24.376069), App.Rotation())
sketch18.addGeometry([
    Part.LineSegment(Vector(12.5, -86, 0), Vector(12.5, -87, 0)),
    Part.LineSegment(Vector(12.5, -87, 0), Vector(16.5, -87, 0)),
    Part.LineSegment(Vector(16.5, -87, 0), Vector(16.5, -86, 0)),
    Part.LineSegment(Vector(16.5, -86, 0), Vector(12.5, -86, 0)),
], False)
sketch18.addConstraint([
    Sketcher.Constraint("Coincident", 0, 2, 1, 1),
    Sketcher.Constraint("Coincident", 1, 2, 2, 1),
    Sketcher.Constraint("Coincident", 2, 2, 3, 1),
    Sketcher.Constraint("Coincident", 3, 2, 0, 1),
    Sketcher.Constraint("Vertical", 0),
    Sketcher.Constraint("Horizontal", 1),
    Sketcher.Constraint("Vertical", 2),
    Sketcher.Constraint("Horizontal", 3),
    Sketcher.Constraint("DistanceX", 1, 1, 1, 2, Q("4 mm")),
    Sketcher.Constraint("DistanceY", 0, 2, 0, 1, Q("1 mm")),
    Sketcher.Constraint("DistanceY", 0, 2, -1, 1, Q("87.04258 mm")),
    Sketcher.Constraint("DistanceX", -1, 1, 0, 2, Q("12.483775 mm")),
])
pocket11 = body.newObject("PartDesign::Pocket", "Pocket010")
pocket11.Profile = sketch18
pocket11.Length = 7

sketch19 = body.newObject("Sketcher::SketchObject", "Sketch018")
sketch19.AttachmentSupport = (doc.getObject("XY_Plane"), [""])
sketch19.MapMode = "FlatFace"
sketch19.AttachmentOffset = App.Placement(Vector(0, 0, -41.376069), App.Rotation())
sketch19.addGeometry(Part.Circle(Vector(14, -94, 0), Vector(0, 0, 1), 5), False)
sketch19.addConstraint([
    Sketcher.Constraint("Diameter", 0, Q("10 mm")),
    Sketcher.Constraint("DistanceY", 0, 3, -1, 1, Q("93.54258 mm")),
    Sketcher.Constraint("DistanceX", -1, 1, 0, 3, Q("14.483775 mm")),
])
pocket12 = body.newObject("PartDesign::Pocket", "Pocket011")
pocket12.Profile = sketch19
pocket12.Length = 6

sketch20 = body.newObject("Sketcher::SketchObject", "Sketch019")
sketch20.AttachmentSupport = (doc.getObject("XY_Plane"), [""])
sketch20.MapMode = "FlatFace"
sketch20.AttachmentOffset = App.Placement(Vector(0, 0, -41.376069), App.Rotation())
sketch20.addGeometry(Part.Circle(Vector(14.5, -93.5, 0), Vector(0, 0, 1), 5), False)
sketch20.addConstraint([
    Sketcher.Constraint("Diameter", 0, Q("10 mm")),
    Sketcher.Constraint("DistanceY", 0, 3, -1, 1, Q("93.54258 mm")),
    Sketcher.Constraint("DistanceX", -1, 1, 0, 3, Q("14.483775 mm")),
])
pad6 = body.newObject("PartDesign::Pad", "Pad005")
pad6.Profile = sketch20
pad6.Length = 2
pad6.Reversed = True

sketch21 = body.newObject("Sketcher::SketchObject", "Sketch020")
sketch21.AttachmentSupport = (doc.getObject("XY_Plane"), [""])
sketch21.MapMode = "FlatFace"
sketch21.AttachmentOffset = App.Placement(Vector(0, 0, -43.376069), App.Rotation())
sketch21.addGeometry(Part.Circle(Vector(14.5, -93.5, 0), Vector(0, 0, 1), 1.5), False)
sketch21.addConstraint([
    Sketcher.Constraint("Diameter", 0, Q("3 mm")),
    Sketcher.Constraint("DistanceY", 0, 3, -1, 1, Q("93.54258 mm")),
    Sketcher.Constraint("DistanceX", -1, 1, 0, 3, Q("14.483775 mm")),
])
pocket13 = body.newObject("PartDesign::Pocket", "Pocket012")
pocket13.Profile = sketch21
pocket13.Type = "UpToFirst"
pocket13.Reversed = True

sketch22 = body.newObject("Sketcher::SketchObject", "Sketch021")
sketch22.AttachmentSupport = (doc.getObject("XY_Plane"), [""])
sketch22.MapMode = "FlatFace"
sketch22.AttachmentOffset = App.Placement(Vector(0, 0, -41.376069), App.Rotation())
sketch22.addGeometry(Part.Circle(Vector(14.5, -93.5, 0), Vector(0, 0, 1), 2.5), False)
sketch22.addConstraint([
    Sketcher.Constraint("Diameter", 0, Q("5 mm")),
    Sketcher.Constraint("DistanceY", 0, 3, -1, 1, Q("93.54258 mm")),
    Sketcher.Constraint("DistanceX", -1, 1, 0, 3, Q("14.483775 mm")),
])
pocket14 = body.newObject("PartDesign::Pocket", "Pocket013")
pocket14.Profile = sketch22
pocket14.Length = 1

doc.recompute()
